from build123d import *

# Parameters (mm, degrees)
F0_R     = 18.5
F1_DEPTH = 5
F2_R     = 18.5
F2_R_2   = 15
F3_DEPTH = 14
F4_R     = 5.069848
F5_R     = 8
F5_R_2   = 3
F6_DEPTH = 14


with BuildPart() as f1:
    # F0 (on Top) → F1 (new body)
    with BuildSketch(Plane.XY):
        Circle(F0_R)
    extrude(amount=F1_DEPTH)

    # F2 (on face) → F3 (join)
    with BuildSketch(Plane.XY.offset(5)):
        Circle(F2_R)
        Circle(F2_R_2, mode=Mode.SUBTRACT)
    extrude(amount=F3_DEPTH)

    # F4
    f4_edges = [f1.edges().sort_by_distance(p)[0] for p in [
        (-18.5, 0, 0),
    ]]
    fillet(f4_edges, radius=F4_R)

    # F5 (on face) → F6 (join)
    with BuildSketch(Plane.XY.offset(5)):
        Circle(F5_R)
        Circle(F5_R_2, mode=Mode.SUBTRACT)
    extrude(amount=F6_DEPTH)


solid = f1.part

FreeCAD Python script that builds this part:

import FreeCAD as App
import Part
import Sketcher

V = App.Vector


def edges_at(feature, points):
    """Names of the edges that pass closest to the given points."""
    edges = feature.Shape.Edges
    near = lambda p: min(range(len(edges)), key=lambda i: edges[i].distToShape(Part.Vertex(*p))[0])
    return sorted({f"Edge{near(p) + 1}" for p in points})

doc = App.newDocument("Part")
body = doc.addObject("PartDesign::Body", "Body")

sketch1 = body.newObject("Sketcher::SketchObject", "Sketch")
sketch1.AttachmentSupport = (doc.getObject("XY_Plane"), [""])
sketch1.MapMode = "FlatFace"
sketch1.addGeometry(Part.Circle(V(0, 0, 0), V(0, 0, 1), 18), False)
sketch1.addConstraint([
    Sketcher.Constraint("Coincident", 0, 3, -1, 1),
    Sketcher.Constraint("Diameter", 0, 37.0),
])
pad1 = body.newObject("PartDesign::Pad", "Pad")
pad1.Profile = sketch1
pad1.Length = 5

sketch2 = body.newObject("Sketcher::SketchObject", "Sketch001")
sketch2.AttachmentSupport = (doc.getObject("XY_Plane"), [""])
sketch2.MapMode = "FlatFace"
sketch2.AttachmentOffset = App.Placement(V(0, 0, 5), App.Rotation())
sketch2.addGeometry([
    Part.Circle(V(0, 0, 0), V(0, 0, 1), 18),
    Part.Circle(V(0, 0, 0), V(0, 0, 1), 15),
], False)
sketch2.addConstraint([
    Sketcher.Constraint("Coincident", 0, 3, -1, 1),
    Sketcher.Constraint("Coincident", 1, 3, -1, 1),
    Sketcher.Constraint("Diameter", 0, 37.0),
    Sketcher.Constraint("Diameter", 1, 30.0),
])
pad2 = body.newObject("PartDesign::Pad", "Pad001")
pad2.Profile = sketch2
pad2.Length = 14
doc.recompute()

fillet = body.newObject("PartDesign::Fillet", "Fillet")
fillet.Base = (pad2, edges_at(pad2, [(-18.5, 0, 0)]))
fillet.Radius = 5.069848

sketch3 = body.newObject("Sketcher::SketchObject", "Sketch002")
sketch3.AttachmentSupport = (doc.getObject("XY_Plane"), [""])
sketch3.MapMode = "FlatFace"
sketch3.AttachmentOffset = App.Placement(V(0, 0, 5), App.Rotation())
sketch3.addGeometry([
    Part.Circle(V(0, 0, 0), V(0, 0, 1), 8),
    Part.Circle(V(0, 0, 0), V(0, 0, 1), 3),
], False)
sketch3.addConstraint([
    Sketcher.Constraint("Coincident", 0, 3, -1, 1),
    Sketcher.Constraint("Coincident", 1, 3, -1, 1),
    Sketcher.Constraint("Diameter", 0, 16.0),
    Sketcher.Constraint("Diameter", 1, 6.0),
])
pad3 = body.newObject("PartDesign::Pad", "Pad002")
pad3.Profile = sketch3
pad3.Length = 14

doc.recompute()
